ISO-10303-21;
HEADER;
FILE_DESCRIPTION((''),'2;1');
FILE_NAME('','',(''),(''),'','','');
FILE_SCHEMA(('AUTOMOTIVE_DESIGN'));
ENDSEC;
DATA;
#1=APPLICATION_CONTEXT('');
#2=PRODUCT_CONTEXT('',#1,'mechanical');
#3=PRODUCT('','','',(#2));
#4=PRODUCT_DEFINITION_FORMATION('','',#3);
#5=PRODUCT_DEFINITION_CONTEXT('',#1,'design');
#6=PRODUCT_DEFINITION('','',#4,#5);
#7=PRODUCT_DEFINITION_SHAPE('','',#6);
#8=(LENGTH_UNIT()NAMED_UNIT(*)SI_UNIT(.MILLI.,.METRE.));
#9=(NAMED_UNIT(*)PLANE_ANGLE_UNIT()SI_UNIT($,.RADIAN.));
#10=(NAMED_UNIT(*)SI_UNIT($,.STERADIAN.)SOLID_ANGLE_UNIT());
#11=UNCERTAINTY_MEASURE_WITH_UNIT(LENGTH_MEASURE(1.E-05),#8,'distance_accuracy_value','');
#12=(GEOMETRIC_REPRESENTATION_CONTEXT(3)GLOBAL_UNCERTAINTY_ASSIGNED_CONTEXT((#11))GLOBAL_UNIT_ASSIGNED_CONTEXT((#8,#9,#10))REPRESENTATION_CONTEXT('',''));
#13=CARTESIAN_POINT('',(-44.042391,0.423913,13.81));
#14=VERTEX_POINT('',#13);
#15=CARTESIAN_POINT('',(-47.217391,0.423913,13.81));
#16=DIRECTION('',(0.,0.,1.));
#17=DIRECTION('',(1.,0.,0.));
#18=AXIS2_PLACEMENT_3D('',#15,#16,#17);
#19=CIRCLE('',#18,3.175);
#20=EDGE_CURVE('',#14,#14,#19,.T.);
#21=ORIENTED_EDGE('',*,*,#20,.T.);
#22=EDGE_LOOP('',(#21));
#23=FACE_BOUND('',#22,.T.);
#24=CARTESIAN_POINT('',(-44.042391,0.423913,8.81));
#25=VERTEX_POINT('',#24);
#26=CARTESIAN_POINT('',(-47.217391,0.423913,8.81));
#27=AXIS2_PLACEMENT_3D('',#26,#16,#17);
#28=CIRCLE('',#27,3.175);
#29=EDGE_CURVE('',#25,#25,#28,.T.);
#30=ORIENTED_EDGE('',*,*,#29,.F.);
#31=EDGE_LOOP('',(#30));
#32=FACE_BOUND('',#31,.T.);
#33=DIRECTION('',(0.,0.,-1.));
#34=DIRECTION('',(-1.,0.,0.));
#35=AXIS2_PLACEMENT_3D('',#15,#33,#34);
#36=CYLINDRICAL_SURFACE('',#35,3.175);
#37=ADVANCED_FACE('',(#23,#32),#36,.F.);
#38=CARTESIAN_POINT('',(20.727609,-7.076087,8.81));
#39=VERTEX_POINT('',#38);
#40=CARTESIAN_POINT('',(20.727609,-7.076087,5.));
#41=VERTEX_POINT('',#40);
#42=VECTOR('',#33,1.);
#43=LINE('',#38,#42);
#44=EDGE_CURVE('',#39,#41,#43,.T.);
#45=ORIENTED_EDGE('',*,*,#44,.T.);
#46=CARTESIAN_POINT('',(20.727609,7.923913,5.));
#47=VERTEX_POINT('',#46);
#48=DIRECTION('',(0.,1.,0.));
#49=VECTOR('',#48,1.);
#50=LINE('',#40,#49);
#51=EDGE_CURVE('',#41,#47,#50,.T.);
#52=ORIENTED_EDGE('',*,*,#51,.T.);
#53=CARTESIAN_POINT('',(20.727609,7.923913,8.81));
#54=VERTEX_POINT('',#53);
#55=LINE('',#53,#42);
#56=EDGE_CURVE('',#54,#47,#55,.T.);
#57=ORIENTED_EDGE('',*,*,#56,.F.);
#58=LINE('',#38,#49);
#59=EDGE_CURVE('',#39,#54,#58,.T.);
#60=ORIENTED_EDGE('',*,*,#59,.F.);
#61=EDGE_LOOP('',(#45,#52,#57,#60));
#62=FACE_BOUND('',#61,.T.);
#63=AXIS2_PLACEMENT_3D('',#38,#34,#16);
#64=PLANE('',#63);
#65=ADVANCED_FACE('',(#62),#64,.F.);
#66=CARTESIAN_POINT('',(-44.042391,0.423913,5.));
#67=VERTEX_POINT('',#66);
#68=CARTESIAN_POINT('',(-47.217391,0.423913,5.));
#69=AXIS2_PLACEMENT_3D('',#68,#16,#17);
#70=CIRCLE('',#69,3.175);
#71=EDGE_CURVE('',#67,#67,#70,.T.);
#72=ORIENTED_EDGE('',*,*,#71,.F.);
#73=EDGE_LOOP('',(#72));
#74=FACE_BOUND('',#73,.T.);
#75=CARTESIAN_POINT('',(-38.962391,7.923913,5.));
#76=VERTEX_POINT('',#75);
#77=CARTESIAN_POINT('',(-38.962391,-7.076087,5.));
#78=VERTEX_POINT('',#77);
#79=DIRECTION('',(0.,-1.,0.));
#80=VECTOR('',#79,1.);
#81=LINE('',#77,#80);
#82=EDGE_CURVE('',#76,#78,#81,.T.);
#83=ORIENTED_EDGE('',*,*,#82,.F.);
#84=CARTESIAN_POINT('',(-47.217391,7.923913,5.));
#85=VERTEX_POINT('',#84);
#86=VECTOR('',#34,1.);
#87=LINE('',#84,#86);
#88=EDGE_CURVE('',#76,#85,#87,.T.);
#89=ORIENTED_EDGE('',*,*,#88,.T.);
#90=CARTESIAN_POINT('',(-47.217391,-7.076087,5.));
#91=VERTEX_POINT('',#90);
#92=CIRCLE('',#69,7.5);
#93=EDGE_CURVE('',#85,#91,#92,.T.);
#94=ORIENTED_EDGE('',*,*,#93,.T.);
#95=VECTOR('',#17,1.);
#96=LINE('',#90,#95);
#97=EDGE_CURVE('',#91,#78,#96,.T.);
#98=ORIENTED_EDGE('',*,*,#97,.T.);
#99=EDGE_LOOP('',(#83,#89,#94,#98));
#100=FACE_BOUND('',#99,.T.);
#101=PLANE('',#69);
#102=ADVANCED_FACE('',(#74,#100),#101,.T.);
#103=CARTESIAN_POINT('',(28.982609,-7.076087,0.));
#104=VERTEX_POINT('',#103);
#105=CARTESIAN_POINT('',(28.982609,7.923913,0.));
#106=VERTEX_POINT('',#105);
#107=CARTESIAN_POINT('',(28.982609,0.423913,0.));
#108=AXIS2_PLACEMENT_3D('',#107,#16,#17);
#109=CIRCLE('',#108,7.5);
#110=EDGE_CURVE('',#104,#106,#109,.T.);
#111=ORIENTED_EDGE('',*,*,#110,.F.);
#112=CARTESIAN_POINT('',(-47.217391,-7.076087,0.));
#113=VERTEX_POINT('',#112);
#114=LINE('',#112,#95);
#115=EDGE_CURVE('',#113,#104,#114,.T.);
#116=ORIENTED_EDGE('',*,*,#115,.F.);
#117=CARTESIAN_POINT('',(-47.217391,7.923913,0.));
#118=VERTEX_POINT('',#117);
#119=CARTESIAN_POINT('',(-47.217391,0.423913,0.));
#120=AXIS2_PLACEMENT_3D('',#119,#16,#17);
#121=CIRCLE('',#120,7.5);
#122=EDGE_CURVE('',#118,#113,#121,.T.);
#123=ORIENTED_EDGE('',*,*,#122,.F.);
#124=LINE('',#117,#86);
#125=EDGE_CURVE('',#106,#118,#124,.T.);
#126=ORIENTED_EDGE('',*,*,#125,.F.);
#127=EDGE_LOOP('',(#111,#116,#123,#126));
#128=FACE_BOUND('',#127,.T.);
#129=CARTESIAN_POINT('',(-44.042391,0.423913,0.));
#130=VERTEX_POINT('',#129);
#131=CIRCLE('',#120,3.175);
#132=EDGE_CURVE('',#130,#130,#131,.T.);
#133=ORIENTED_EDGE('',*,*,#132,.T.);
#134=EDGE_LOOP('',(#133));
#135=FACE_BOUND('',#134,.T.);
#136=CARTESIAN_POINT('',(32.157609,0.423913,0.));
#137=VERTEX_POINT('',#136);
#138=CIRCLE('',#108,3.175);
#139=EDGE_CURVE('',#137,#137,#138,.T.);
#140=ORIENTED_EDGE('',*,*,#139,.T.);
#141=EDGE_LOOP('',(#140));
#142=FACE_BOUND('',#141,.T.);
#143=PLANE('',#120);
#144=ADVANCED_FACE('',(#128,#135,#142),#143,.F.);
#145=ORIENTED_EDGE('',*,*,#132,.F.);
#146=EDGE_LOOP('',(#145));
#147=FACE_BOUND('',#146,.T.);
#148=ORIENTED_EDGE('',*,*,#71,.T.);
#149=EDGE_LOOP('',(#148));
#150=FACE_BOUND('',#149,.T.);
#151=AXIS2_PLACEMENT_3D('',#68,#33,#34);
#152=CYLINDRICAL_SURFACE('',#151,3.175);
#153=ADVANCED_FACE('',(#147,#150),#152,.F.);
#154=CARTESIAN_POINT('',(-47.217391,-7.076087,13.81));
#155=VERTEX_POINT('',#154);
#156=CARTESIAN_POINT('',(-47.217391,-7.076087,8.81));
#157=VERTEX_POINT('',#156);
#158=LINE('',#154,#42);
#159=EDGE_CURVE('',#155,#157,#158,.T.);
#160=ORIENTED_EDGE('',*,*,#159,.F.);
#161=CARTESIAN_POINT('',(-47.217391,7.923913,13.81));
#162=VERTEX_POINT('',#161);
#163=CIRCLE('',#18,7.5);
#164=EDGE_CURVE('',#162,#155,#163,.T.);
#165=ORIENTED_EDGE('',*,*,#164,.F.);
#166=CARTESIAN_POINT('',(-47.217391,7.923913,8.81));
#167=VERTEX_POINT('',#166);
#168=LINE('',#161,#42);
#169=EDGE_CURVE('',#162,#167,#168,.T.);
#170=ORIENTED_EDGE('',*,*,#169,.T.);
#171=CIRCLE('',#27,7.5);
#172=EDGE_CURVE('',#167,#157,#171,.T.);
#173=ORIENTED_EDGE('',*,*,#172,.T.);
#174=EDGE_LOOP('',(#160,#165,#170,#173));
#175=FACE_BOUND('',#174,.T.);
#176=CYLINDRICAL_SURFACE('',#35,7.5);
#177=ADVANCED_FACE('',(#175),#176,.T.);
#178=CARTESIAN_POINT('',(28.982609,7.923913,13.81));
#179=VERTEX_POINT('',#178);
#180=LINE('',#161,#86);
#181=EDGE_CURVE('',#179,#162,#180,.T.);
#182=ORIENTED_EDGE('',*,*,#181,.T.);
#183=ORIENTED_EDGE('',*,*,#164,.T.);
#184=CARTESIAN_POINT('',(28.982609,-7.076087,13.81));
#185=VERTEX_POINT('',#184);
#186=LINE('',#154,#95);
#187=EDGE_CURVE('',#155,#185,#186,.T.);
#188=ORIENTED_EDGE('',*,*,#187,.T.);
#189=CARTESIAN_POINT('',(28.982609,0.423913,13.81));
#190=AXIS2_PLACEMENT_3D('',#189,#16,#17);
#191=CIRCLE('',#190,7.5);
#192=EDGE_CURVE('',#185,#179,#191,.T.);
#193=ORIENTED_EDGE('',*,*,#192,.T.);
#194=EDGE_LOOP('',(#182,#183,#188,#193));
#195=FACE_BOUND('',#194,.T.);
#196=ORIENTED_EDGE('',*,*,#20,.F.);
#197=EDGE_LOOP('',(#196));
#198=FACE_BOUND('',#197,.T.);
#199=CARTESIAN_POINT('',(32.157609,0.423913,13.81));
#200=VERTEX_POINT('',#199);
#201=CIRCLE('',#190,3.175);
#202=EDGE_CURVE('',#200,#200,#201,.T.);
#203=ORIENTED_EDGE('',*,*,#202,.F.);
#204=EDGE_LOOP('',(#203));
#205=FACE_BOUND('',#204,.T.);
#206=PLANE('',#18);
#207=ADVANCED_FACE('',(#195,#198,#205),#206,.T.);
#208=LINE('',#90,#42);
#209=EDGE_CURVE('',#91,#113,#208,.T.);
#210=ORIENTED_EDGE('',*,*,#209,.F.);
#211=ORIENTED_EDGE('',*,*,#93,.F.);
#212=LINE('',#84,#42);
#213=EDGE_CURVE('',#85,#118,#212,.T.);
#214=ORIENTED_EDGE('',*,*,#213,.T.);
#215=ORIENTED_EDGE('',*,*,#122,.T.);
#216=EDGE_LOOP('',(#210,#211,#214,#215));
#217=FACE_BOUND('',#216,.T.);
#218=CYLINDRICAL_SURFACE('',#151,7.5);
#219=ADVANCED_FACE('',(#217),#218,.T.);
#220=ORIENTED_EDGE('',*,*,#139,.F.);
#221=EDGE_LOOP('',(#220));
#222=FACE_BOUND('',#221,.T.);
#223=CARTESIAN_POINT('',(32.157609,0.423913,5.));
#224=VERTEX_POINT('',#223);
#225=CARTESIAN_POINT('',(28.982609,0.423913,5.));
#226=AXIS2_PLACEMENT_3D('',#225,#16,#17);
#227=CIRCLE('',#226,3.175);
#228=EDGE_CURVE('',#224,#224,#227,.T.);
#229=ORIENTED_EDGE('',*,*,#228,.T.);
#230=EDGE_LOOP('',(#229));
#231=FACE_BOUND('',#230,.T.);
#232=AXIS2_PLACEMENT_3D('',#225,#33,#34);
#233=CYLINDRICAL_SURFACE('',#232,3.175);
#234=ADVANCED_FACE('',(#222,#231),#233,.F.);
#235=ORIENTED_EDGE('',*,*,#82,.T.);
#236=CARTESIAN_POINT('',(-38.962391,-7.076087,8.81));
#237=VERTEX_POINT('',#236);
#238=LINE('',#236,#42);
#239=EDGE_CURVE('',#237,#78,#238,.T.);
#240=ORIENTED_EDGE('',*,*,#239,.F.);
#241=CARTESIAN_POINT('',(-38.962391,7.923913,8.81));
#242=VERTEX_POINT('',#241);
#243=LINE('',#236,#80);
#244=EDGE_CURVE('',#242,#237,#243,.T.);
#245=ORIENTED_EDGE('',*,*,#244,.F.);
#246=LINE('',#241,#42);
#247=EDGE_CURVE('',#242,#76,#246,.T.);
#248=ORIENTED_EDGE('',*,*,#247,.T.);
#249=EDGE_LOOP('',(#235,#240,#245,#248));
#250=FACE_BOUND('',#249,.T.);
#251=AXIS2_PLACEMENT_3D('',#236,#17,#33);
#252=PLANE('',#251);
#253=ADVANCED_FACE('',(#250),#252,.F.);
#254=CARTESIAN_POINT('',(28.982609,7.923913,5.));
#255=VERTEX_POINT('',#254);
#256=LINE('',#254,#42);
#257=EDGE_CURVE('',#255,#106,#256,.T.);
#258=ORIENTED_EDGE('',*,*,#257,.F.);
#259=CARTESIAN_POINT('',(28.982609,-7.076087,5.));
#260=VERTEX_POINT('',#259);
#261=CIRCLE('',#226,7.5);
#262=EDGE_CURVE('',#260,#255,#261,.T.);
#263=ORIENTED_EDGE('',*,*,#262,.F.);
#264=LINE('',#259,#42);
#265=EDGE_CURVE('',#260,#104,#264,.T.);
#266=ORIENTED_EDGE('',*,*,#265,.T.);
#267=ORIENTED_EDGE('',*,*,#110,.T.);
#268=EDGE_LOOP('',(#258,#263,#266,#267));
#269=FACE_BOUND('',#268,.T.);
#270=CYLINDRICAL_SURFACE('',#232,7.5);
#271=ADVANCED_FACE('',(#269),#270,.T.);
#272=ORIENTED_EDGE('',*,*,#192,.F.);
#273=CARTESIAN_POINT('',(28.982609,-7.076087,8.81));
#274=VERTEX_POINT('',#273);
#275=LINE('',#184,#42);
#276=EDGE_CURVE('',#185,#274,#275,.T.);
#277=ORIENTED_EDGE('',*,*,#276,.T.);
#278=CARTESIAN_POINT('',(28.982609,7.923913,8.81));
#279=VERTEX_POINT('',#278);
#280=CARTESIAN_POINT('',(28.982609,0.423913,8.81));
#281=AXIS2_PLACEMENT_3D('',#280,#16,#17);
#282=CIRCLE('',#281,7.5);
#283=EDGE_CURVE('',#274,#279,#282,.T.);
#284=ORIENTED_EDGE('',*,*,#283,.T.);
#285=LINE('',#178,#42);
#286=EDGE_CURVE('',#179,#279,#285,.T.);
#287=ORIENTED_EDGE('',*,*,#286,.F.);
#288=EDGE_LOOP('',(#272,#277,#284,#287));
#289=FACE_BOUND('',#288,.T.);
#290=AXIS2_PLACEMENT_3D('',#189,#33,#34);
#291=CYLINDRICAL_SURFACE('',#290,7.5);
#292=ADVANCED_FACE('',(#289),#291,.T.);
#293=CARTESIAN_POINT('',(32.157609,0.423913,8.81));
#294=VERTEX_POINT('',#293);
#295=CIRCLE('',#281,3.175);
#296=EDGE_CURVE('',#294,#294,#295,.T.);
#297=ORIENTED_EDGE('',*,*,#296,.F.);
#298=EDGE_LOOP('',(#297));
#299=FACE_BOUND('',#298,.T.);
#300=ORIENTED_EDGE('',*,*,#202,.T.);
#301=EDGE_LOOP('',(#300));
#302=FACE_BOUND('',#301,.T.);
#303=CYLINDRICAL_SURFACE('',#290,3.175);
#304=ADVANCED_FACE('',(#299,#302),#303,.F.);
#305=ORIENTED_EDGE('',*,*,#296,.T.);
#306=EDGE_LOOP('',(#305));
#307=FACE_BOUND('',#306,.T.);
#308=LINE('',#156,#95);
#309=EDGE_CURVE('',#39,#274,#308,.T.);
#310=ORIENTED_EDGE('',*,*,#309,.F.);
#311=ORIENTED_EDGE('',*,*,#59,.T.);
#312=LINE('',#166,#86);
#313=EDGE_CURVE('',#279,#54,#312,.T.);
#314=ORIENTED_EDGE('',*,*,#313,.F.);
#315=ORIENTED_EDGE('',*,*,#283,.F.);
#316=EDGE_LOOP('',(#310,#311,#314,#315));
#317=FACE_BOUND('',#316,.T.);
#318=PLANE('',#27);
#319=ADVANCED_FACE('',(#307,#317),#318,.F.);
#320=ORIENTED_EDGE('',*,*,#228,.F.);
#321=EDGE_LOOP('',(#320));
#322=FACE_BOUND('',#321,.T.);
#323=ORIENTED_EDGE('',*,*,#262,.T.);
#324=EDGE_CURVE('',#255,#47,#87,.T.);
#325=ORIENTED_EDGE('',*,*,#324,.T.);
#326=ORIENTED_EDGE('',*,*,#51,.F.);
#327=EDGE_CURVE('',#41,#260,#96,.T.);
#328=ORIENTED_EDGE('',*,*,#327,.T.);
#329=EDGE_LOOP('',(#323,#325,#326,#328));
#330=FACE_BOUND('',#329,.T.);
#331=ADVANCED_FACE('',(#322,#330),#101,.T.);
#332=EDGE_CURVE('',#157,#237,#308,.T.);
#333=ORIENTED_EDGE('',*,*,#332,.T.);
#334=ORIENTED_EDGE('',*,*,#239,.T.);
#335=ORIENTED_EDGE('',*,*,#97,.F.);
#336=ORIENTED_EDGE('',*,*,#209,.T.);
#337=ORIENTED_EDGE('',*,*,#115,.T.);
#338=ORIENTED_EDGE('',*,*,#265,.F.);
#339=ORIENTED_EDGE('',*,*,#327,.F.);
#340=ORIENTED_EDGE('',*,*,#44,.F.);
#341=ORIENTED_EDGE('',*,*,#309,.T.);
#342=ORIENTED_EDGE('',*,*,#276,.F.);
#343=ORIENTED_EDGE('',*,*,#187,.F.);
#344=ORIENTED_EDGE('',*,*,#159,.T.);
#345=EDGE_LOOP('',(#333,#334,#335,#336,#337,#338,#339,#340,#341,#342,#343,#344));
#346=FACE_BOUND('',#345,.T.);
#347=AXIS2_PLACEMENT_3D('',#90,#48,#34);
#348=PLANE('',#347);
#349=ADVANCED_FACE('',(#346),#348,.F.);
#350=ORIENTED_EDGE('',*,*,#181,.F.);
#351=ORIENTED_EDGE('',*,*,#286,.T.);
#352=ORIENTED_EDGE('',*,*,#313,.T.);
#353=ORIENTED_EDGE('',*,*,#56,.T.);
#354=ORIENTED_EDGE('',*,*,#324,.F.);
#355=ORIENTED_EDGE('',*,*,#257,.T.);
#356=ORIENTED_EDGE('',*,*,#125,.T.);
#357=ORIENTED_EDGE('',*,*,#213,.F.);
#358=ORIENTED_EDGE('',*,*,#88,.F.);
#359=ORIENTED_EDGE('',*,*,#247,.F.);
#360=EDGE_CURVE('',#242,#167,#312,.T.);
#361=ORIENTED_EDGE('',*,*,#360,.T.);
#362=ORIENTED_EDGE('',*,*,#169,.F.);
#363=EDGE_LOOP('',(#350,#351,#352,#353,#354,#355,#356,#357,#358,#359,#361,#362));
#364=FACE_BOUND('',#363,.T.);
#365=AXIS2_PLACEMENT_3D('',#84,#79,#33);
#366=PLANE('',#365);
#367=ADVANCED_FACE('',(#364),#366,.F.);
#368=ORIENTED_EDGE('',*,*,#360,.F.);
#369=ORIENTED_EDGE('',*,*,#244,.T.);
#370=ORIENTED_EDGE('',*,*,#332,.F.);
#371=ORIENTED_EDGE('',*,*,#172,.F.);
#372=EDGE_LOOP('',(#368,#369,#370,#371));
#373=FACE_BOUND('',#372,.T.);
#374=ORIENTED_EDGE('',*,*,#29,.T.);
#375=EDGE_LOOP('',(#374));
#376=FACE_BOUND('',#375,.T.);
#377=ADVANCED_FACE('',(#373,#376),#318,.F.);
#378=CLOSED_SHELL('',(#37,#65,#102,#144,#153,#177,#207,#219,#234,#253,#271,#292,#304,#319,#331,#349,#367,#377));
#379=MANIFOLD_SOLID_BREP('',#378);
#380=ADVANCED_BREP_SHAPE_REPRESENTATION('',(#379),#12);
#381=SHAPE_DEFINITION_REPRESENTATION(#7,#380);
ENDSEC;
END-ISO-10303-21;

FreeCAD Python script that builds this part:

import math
import FreeCAD as App
import Part
import Sketcher
Q = App.Units.Quantity

doc = App.newDocument("Part")
body = doc.addObject("PartDesign::Body", "Body")

sketch1 = doc.addObject("Sketcher::SketchObject", "Sketch")
body.addObject(sketch1)
sketch1.AttachmentSupport = (doc.XY_Plane, [""])
sketch1.MapMode = "FlatFace"
sketch1.addGeometry([
    Part.LineSegment(App.Vector(29, 7.9, 0), App.Vector(-47.2, 7.9, 0)),
    Part.ArcOfCircle(Part.Circle(App.Vector(-47.2, 0.4, 0), App.Vector(0, 0, 1), 7.5), math.radians(90), math.radians(270)),
    Part.LineSegment(App.Vector(-47.2, -7.1, 0), App.Vector(29, -7.1, 0)),
    Part.ArcOfCircle(Part.Circle(App.Vector(29, 0.4, 0), App.Vector(0, 0, 1), 7.5), math.radians(-90), math.radians(90)),
    Part.Circle(App.Vector(29, 0.4, 0), App.Vector(0, 0, 1), 3.2),
    Part.Circle(App.Vector(-47.2, 0.4, 0), App.Vector(0, 0, 1), 3.2),
], False)
sketch1.addConstraint([
    Sketcher.Constraint("Tangent", 0, 2, 1, 1),
    Sketcher.Constraint("Tangent", 1, 2, 2, 1),
    Sketcher.Constraint("Tangent", 2, 2, 3, 1),
    Sketcher.Constraint("Tangent", 3, 2, 0, 1),
    Sketcher.Constraint("Horizontal", 0),
    Sketcher.Constraint("Horizontal", 2),
    Sketcher.Constraint("Coincident", 4, 3, 3, 3),
    Sketcher.Constraint("Coincident", 5, 3, 1, 3),
    Sketcher.Constraint("Equal", 4, 5),
    Sketcher.Constraint("Diameter", 4, Q("0.25 in")),
    Sketcher.Constraint("DistanceX", 0, 2, 0, 1, Q("3 in")),
    Sketcher.Constraint("Radius", 1, Q("7.5 mm")),
    Sketcher.Constraint("DistanceX", 1, 3, -1, 1, Q("47.217391 mm")),
    Sketcher.Constraint("DistanceY", -1, 1, 1, 3, Q("0.423913 mm")),
])
pad1 = doc.addObject("PartDesign::Pad", "Pad")
body.addObject(pad1)
pad1.Profile = sketch1
pad1.Length = 5

sketch2 = doc.addObject("Sketcher::SketchObject", "Sketch001")
body.addObject(sketch2)
sketch2.AttachmentSupport = (doc.XY_Plane, [""])
sketch2.MapMode = "FlatFace"
sketch2.AttachmentOffset = App.Placement(App.Vector(0, 0, 5), App.Rotation())
sketch2.addGeometry([
    Part.LineSegment(App.Vector(-39, 8, 0), App.Vector(-39, -7, 0)),
    Part.LineSegment(App.Vector(-39, -7, 0), App.Vector(21, -7, 0)),
    Part.LineSegment(App.Vector(21, -7, 0), App.Vector(21, 8, 0)),
    Part.LineSegment(App.Vector(21, 8, 0), App.Vector(-39, 8, 0)),
], False)
sketch2.addConstraint([
    Sketcher.Constraint("Coincident", 0, 2, 1, 1),
    Sketcher.Constraint("Coincident", 1, 2, 2, 1),
    Sketcher.Constraint("Coincident", 2, 2, 3, 1),
    Sketcher.Constraint("Coincident", 3, 2, 0, 1),
    Sketcher.Constraint("Vertical", 0),
    Sketcher.Constraint("Horizontal", 1),
    Sketcher.Constraint("Vertical", 2),
    Sketcher.Constraint("Horizontal", 3),
    Sketcher.Constraint("DistanceX", 1, 1, 1, 2, Q("2.35 in")),
    Sketcher.Constraint("DistanceY", 0, 2, 0, 1, Q("15 mm")),
    Sketcher.Constraint("DistanceX", 0, 2, -1, 1, Q("38.962391 mm")),
    Sketcher.Constraint("DistanceY", 0, 2, -1, 1, Q("7.076087 mm")),
])
pad2 = doc.addObject("PartDesign::Pad", "Pad001")
body.addObject(pad2)
pad2.Profile = sketch2
pad2.Length = Q("0.15 in")

sketch3 = doc.addObject("Sketcher::SketchObject", "Sketch002")
body.addObject(sketch3)
sketch3.AttachmentSupport = (doc.XY_Plane, [""])
sketch3.MapMode = "FlatFace"
sketch3.AttachmentOffset = App.Placement(App.Vector(0, 0, 8.81), App.Rotation())
sketch3.addGeometry([
    Part.LineSegment(App.Vector(29, 7.9, 0), App.Vector(-47.2, 7.9, 0)),
    Part.ArcOfCircle(Part.Circle(App.Vector(-47.2, 0.4, 0), App.Vector(0, 0, 1), 7.5), math.radians(90), math.radians(270)),
    Part.LineSegment(App.Vector(-47.2, -7.1, 0), App.Vector(29, -7.1, 0)),
    Part.ArcOfCircle(Part.Circle(App.Vector(29, 0.4, 0), App.Vector(0, 0, 1), 7.5), math.radians(-90), math.radians(90)),
    Part.Circle(App.Vector(29, 0.4, 0), App.Vector(0, 0, 1), 3.2),
    Part.Circle(App.Vector(-47.2, 0.4, 0), App.Vector(0, 0, 1), 3.2),
], False)
sketch3.addConstraint([
    Sketcher.Constraint("Tangent", 0, 2, 1, 1),
    Sketcher.Constraint("Tangent", 1, 2, 2, 1),
    Sketcher.Constraint("Tangent", 2, 2, 3, 1),
    Sketcher.Constraint("Tangent", 3, 2, 0, 1),
    Sketcher.Constraint("Horizontal", 0),
    Sketcher.Constraint("Horizontal", 2),
    Sketcher.Constraint("Coincident", 4, 3, 3, 3),
    Sketcher.Constraint("Coincident", 5, 3, 1, 3),
    Sketcher.Constraint("Equal", 4, 5),
    Sketcher.Constraint("Diameter", 4, Q("0.25 in")),
    Sketcher.Constraint("DistanceX", 0, 2, 0, 1, Q("3 in")),
    Sketcher.Constraint("Radius", 1, Q("7.5 mm")),
    Sketcher.Constraint("DistanceX", 1, 3, -1, 1, Q("47.217391 mm")),
    Sketcher.Constraint("DistanceY", -1, 1, 1, 3, Q("0.423913 mm")),
])
pad3 = doc.addObject("PartDesign::Pad", "Pad002")
body.addObject(pad3)
pad3.Profile = sketch3
pad3.Length = 5

doc.recompute()
